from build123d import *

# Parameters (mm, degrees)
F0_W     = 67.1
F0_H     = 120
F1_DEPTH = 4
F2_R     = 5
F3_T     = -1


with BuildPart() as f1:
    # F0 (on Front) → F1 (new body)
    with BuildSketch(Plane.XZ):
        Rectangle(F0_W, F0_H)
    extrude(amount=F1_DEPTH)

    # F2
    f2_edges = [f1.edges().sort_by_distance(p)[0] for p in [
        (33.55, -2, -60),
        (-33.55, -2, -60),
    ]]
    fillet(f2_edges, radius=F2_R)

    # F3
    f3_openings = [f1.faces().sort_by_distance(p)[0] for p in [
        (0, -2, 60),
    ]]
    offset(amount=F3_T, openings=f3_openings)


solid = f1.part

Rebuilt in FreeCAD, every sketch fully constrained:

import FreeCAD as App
import Part
import Sketcher

V = App.Vector


def edges_at(feature, points):
    """Names of the edges that pass closest to the given points."""
    edges = feature.Shape.Edges
    near = lambda p: min(range(len(edges)), key=lambda i: edges[i].distToShape(Part.Vertex(*p))[0])
    return sorted({f"Edge{near(p) + 1}" for p in points})


def faces_at(feature, points):
    """Names of the faces that lie closest to the given points."""
    faces = feature.Shape.Faces
    near = lambda p: min(range(len(faces)), key=lambda i: faces[i].distToShape(Part.Vertex(*p))[0])
    return sorted({f"Face{near(p) + 1}" for p in points})


def add_polygon(sketch, points):
    """Adds a closed chain of lines whose ends are joined by coincident constraints."""
    first, n = sketch.GeometryCount, len(points)
    for a, b in zip(points, points[1:] + points[:1]):
        sketch.addGeometry(Part.LineSegment(App.Vector(*a, 0), App.Vector(*b, 0)), False)
    for i in range(n):
        sketch.addConstraint(Sketcher.Constraint("Coincident", first + i, 2, first + (i + 1) % n, 1))

doc = App.newDocument("Part")
body = doc.addObject("PartDesign::Body", "Body")

# Sketch on XZ plane
sketch1 = doc.addObject("Sketcher::SketchObject", "Sketch")
body.addObject(sketch1)
sketch1.AttachmentSupport = (doc.XZ_Plane, [""])
sketch1.MapMode = "FlatFace"
add_polygon(sketch1, [(-33.55, 60), (-33.55, -60), (33.55, -60), (33.55, 60)])  # lines 0-3
sketch1.addConstraint([
    Sketcher.Constraint("Vertical", 0),
    Sketcher.Constraint("Horizontal", 1),
    Sketcher.Constraint("Vertical", 2),
    Sketcher.Constraint("Horizontal", 3),
    Sketcher.Constraint("Symmetric", 0, 2, 2, 2, -1, 1),
    Sketcher.Constraint("DistanceY", 0, 2, 0, 1, 120.0),
    Sketcher.Constraint("DistanceX", 1, 1, 1, 2, 67.1),
])
pad1 = doc.addObject("PartDesign::Pad", "Pad")
body.addObject(pad1)
pad1.Profile = sketch1
pad1.Length = 4
doc.recompute()

fillet = doc.addObject("PartDesign::Fillet", "Fillet")
body.addObject(fillet)
fillet.Base = (pad1, edges_at(pad1, [(33.55, -2, -60), (-33.55, -2, -60)]))
fillet.Radius = 5
doc.recompute()

thickness = doc.addObject("PartDesign::Thickness", "Thickness")
body.addObject(thickness)
thickness.Base = (fillet, faces_at(fillet, [(0, -2, 60)]))
thickness.Value = 1
thickness.Reversed = True
thickness.Join = "Arc"

doc.recompute()
